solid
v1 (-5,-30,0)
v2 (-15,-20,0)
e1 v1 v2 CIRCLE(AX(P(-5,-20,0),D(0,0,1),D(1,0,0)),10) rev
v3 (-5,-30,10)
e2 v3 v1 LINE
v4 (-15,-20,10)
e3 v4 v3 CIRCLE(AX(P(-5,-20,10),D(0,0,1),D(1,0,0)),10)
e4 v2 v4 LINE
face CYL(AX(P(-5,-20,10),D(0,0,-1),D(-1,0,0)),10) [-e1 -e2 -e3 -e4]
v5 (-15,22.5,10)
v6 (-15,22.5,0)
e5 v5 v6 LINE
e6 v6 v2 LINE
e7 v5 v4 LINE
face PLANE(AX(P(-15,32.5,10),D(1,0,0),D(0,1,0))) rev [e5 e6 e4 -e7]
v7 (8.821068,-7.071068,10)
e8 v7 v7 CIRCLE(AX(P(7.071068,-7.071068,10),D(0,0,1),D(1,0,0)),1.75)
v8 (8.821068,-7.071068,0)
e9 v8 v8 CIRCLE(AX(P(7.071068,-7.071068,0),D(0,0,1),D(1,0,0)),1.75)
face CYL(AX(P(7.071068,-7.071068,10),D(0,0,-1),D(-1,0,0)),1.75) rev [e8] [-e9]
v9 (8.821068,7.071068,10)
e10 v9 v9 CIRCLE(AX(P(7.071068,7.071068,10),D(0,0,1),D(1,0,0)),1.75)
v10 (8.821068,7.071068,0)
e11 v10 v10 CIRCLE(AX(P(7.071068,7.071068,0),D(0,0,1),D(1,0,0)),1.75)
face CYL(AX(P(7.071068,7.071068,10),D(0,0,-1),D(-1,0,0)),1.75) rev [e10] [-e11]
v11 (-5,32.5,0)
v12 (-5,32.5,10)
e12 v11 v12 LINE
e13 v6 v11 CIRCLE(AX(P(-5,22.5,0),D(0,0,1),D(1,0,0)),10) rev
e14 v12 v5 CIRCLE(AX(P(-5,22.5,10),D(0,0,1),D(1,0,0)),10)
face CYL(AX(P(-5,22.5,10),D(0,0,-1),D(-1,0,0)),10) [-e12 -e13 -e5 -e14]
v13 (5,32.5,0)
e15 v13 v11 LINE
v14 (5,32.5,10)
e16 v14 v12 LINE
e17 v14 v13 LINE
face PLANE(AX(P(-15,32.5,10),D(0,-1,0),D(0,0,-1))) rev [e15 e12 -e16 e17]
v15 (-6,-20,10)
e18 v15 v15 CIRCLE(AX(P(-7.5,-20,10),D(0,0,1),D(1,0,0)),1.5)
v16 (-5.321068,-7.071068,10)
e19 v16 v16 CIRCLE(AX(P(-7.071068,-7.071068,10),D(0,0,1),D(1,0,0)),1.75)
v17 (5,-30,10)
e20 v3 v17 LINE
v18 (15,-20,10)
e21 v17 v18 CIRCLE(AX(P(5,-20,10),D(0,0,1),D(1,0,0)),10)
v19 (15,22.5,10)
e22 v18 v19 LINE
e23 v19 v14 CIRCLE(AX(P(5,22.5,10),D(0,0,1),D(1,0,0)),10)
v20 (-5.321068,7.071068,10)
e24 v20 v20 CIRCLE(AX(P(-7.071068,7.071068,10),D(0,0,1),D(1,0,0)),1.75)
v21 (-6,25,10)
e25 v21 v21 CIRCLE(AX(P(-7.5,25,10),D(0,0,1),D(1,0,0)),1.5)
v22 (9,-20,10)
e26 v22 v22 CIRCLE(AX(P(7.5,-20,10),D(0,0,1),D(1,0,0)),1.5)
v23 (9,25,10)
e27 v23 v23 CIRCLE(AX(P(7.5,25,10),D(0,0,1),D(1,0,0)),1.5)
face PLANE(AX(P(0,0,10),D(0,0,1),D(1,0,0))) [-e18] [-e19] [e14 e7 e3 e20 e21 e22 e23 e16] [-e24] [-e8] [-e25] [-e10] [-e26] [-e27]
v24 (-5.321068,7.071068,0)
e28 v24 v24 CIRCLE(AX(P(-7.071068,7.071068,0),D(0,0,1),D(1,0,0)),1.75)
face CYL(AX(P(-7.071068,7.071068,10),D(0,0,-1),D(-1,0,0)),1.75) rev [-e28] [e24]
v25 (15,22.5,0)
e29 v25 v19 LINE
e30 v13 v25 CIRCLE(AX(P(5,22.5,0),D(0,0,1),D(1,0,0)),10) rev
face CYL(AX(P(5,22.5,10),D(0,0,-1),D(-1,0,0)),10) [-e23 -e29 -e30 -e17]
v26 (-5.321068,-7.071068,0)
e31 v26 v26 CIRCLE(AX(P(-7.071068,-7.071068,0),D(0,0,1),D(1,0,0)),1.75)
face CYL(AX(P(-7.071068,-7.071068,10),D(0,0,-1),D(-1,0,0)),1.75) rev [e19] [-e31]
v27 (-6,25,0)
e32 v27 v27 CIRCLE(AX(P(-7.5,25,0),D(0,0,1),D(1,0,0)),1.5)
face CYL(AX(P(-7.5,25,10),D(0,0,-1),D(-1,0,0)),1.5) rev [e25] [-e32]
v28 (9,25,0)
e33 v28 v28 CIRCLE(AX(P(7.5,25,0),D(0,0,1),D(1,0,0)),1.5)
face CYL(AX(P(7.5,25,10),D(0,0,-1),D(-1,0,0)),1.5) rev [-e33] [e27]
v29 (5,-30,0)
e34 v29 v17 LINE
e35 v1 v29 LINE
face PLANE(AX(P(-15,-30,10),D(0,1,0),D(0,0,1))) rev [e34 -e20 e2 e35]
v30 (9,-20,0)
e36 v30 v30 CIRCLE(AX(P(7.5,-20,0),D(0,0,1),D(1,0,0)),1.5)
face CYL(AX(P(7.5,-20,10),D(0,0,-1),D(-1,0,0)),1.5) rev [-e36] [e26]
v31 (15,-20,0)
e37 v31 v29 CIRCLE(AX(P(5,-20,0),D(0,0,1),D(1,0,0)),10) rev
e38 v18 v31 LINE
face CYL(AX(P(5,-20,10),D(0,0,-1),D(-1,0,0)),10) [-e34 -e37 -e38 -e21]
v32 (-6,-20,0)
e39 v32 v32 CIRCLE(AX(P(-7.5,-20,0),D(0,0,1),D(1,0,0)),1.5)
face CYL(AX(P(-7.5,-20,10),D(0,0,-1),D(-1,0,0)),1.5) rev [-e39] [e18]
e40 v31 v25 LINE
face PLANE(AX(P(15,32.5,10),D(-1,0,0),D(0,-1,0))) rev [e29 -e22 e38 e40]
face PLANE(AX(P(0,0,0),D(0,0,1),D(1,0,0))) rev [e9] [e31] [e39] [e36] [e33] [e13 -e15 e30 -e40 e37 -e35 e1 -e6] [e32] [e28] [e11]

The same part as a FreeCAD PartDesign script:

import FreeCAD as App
import Part
import Sketcher

V = App.Vector


def edges_at(feature, points):
    """Names of the edges that pass closest to the given points."""
    edges = feature.Shape.Edges
    near = lambda p: min(range(len(edges)), key=lambda i: edges[i].distToShape(Part.Vertex(*p))[0])
    return sorted({f"Edge{near(p) + 1}" for p in points})

doc = App.newDocument("Part")
params = doc.addObject("Spreadsheet::Sheet", "Params")
for row, (alias, value) in enumerate([
    ("sketch1_diameter", "3 mm"),
    ("sketch1_diameter2", "3.5 mm"),
    ("sketch1_width", "30 mm"),
    ("sketch1_height", "62.5 mm"),
    ("pad1_length", "10 mm"),
    ("fillet_radius", "10 mm"),
], start=1):
    params.set(f"A{row}", alias)
    params.set(f"B{row}", "=" + value)
    params.setAlias(f"B{row}", alias)

body = doc.addObject("PartDesign::Body", "Body")

# Sketch on XY plane
sketch1 = doc.addObject("Sketcher::SketchObject", "Sketch")
body.addObject(sketch1)
sketch1.AttachmentSupport = (doc.XY_Plane, [""])
sketch1.MapMode = "FlatFace"
sketch1.addGeometry([
    Part.LineSegment(V(-15, 32.5, 0), V(-15, -30, 0)),  # 0
    Part.LineSegment(V(-15, -30, 0), V(15, -30, 0)),  # 1
    Part.LineSegment(V(15, -30, 0), V(15, 32.5, 0)),  # 2
    Part.LineSegment(V(15, 32.5, 0), V(-15, 32.5, 0)),  # 3
    Part.Circle(V(-7.5, -20, 0), V(0, 0, 1), 1.5),  # 4
    Part.Circle(V(-7.1, -7.1, 0), V(0, 0, 1), 1.8),  # 5
    Part.Circle(V(7.5, -20, 0), V(0, 0, 1), 1.5),  # 6
    Part.Circle(V(7.1, -7.1, 0), V(0, 0, 1), 1.8),  # 7
    Part.Circle(V(-7.1, 7.1, 0), V(0, 0, 1), 1.8),  # 8
    Part.Circle(V(-7.5, 25, 0), V(0, 0, 1), 1.5),  # 9
    Part.Circle(V(7.1, 7.1, 0), V(0, 0, 1), 1.8),  # 10
    Part.Circle(V(7.5, 25, 0), V(0, 0, 1), 1.5),  # 11
], False)
sketch1.addConstraint([
    Sketcher.Constraint("Coincident", 0, 2, 1, 1),
    Sketcher.Constraint("Coincident", 1, 2, 2, 1),
    Sketcher.Constraint("Coincident", 2, 2, 3, 1),
    Sketcher.Constraint("Coincident", 3, 2, 0, 1),
    Sketcher.Constraint("Vertical", 0),
    Sketcher.Constraint("Horizontal", 1),
    Sketcher.Constraint("Vertical", 2),
    Sketcher.Constraint("Horizontal", 3),
    Sketcher.Constraint("Equal", 4, 6),
    Sketcher.Constraint("Equal", 5, 7),
    Sketcher.Constraint("Equal", 7, 8),
    Sketcher.Constraint("Equal", 6, 9),
    Sketcher.Constraint("Equal", 8, 10),
    Sketcher.Constraint("Equal", 9, 11),
    Sketcher.Constraint("Symmetric", 7, 3, 8, 3, -1, 1),
    Sketcher.Constraint("Symmetric", 5, 3, 10, 3, -1, 1),
    Sketcher.Constraint("Symmetric", 4, 3, 6, 3, -2),
    Sketcher.Constraint("Symmetric", 5, 3, 7, 3, -2),
    Sketcher.Constraint("Symmetric", 9, 3, 11, 3, -2),
    Sketcher.Constraint("Vertical", 4, 3, 9, 3),
    Sketcher.Constraint("Diameter", 4, 3.0),
    Sketcher.Constraint("Diameter", 5, 3.5),
    Sketcher.Constraint("DistanceX", 1, 1, 1, 2, 30.0),
    Sketcher.Constraint("DistanceY", 0, 2, 0, 1, 62.5),
    Sketcher.Constraint("DistanceY", 4, 3, -1, 1, 20.0),
    Sketcher.Constraint("DistanceY", -1, 1, 9, 3, 25.0),
    Sketcher.Constraint("DistanceX", 0, 2, -1, 1, 15.0),
    Sketcher.Constraint("DistanceY", 0, 2, -1, 1, 30.0),
    Sketcher.Constraint("DistanceX", 4, 3, 6, 3, 15.0),
    Sketcher.Constraint("DistanceX", 5, 3, -1, 1, 7.071068),
    Sketcher.Constraint("DistanceY", 5, 3, -1, 1, 7.071068),
])
sketch1.setExpression("Constraints[20]", "Params.sketch1_diameter")
sketch1.setExpression("Constraints[21]", "Params.sketch1_diameter2")
sketch1.setExpression("Constraints[22]", "Params.sketch1_width")
sketch1.setExpression("Constraints[23]", "Params.sketch1_height")
pad1 = doc.addObject("PartDesign::Pad", "Pad")
body.addObject(pad1)
pad1.Profile = sketch1
pad1.setExpression("Length", "Params.pad1_length")
doc.recompute()

fillet = doc.addObject("PartDesign::Fillet", "Fillet")
body.addObject(fillet)
fillet.Base = (pad1, edges_at(pad1, [
    (15, -30, 5),
    (-15, -30, 5),
    (-15, 32.5, 5),
    (15, 32.5, 5),
]))
fillet.setExpression("Radius", "Params.fillet_radius")

doc.recompute()
